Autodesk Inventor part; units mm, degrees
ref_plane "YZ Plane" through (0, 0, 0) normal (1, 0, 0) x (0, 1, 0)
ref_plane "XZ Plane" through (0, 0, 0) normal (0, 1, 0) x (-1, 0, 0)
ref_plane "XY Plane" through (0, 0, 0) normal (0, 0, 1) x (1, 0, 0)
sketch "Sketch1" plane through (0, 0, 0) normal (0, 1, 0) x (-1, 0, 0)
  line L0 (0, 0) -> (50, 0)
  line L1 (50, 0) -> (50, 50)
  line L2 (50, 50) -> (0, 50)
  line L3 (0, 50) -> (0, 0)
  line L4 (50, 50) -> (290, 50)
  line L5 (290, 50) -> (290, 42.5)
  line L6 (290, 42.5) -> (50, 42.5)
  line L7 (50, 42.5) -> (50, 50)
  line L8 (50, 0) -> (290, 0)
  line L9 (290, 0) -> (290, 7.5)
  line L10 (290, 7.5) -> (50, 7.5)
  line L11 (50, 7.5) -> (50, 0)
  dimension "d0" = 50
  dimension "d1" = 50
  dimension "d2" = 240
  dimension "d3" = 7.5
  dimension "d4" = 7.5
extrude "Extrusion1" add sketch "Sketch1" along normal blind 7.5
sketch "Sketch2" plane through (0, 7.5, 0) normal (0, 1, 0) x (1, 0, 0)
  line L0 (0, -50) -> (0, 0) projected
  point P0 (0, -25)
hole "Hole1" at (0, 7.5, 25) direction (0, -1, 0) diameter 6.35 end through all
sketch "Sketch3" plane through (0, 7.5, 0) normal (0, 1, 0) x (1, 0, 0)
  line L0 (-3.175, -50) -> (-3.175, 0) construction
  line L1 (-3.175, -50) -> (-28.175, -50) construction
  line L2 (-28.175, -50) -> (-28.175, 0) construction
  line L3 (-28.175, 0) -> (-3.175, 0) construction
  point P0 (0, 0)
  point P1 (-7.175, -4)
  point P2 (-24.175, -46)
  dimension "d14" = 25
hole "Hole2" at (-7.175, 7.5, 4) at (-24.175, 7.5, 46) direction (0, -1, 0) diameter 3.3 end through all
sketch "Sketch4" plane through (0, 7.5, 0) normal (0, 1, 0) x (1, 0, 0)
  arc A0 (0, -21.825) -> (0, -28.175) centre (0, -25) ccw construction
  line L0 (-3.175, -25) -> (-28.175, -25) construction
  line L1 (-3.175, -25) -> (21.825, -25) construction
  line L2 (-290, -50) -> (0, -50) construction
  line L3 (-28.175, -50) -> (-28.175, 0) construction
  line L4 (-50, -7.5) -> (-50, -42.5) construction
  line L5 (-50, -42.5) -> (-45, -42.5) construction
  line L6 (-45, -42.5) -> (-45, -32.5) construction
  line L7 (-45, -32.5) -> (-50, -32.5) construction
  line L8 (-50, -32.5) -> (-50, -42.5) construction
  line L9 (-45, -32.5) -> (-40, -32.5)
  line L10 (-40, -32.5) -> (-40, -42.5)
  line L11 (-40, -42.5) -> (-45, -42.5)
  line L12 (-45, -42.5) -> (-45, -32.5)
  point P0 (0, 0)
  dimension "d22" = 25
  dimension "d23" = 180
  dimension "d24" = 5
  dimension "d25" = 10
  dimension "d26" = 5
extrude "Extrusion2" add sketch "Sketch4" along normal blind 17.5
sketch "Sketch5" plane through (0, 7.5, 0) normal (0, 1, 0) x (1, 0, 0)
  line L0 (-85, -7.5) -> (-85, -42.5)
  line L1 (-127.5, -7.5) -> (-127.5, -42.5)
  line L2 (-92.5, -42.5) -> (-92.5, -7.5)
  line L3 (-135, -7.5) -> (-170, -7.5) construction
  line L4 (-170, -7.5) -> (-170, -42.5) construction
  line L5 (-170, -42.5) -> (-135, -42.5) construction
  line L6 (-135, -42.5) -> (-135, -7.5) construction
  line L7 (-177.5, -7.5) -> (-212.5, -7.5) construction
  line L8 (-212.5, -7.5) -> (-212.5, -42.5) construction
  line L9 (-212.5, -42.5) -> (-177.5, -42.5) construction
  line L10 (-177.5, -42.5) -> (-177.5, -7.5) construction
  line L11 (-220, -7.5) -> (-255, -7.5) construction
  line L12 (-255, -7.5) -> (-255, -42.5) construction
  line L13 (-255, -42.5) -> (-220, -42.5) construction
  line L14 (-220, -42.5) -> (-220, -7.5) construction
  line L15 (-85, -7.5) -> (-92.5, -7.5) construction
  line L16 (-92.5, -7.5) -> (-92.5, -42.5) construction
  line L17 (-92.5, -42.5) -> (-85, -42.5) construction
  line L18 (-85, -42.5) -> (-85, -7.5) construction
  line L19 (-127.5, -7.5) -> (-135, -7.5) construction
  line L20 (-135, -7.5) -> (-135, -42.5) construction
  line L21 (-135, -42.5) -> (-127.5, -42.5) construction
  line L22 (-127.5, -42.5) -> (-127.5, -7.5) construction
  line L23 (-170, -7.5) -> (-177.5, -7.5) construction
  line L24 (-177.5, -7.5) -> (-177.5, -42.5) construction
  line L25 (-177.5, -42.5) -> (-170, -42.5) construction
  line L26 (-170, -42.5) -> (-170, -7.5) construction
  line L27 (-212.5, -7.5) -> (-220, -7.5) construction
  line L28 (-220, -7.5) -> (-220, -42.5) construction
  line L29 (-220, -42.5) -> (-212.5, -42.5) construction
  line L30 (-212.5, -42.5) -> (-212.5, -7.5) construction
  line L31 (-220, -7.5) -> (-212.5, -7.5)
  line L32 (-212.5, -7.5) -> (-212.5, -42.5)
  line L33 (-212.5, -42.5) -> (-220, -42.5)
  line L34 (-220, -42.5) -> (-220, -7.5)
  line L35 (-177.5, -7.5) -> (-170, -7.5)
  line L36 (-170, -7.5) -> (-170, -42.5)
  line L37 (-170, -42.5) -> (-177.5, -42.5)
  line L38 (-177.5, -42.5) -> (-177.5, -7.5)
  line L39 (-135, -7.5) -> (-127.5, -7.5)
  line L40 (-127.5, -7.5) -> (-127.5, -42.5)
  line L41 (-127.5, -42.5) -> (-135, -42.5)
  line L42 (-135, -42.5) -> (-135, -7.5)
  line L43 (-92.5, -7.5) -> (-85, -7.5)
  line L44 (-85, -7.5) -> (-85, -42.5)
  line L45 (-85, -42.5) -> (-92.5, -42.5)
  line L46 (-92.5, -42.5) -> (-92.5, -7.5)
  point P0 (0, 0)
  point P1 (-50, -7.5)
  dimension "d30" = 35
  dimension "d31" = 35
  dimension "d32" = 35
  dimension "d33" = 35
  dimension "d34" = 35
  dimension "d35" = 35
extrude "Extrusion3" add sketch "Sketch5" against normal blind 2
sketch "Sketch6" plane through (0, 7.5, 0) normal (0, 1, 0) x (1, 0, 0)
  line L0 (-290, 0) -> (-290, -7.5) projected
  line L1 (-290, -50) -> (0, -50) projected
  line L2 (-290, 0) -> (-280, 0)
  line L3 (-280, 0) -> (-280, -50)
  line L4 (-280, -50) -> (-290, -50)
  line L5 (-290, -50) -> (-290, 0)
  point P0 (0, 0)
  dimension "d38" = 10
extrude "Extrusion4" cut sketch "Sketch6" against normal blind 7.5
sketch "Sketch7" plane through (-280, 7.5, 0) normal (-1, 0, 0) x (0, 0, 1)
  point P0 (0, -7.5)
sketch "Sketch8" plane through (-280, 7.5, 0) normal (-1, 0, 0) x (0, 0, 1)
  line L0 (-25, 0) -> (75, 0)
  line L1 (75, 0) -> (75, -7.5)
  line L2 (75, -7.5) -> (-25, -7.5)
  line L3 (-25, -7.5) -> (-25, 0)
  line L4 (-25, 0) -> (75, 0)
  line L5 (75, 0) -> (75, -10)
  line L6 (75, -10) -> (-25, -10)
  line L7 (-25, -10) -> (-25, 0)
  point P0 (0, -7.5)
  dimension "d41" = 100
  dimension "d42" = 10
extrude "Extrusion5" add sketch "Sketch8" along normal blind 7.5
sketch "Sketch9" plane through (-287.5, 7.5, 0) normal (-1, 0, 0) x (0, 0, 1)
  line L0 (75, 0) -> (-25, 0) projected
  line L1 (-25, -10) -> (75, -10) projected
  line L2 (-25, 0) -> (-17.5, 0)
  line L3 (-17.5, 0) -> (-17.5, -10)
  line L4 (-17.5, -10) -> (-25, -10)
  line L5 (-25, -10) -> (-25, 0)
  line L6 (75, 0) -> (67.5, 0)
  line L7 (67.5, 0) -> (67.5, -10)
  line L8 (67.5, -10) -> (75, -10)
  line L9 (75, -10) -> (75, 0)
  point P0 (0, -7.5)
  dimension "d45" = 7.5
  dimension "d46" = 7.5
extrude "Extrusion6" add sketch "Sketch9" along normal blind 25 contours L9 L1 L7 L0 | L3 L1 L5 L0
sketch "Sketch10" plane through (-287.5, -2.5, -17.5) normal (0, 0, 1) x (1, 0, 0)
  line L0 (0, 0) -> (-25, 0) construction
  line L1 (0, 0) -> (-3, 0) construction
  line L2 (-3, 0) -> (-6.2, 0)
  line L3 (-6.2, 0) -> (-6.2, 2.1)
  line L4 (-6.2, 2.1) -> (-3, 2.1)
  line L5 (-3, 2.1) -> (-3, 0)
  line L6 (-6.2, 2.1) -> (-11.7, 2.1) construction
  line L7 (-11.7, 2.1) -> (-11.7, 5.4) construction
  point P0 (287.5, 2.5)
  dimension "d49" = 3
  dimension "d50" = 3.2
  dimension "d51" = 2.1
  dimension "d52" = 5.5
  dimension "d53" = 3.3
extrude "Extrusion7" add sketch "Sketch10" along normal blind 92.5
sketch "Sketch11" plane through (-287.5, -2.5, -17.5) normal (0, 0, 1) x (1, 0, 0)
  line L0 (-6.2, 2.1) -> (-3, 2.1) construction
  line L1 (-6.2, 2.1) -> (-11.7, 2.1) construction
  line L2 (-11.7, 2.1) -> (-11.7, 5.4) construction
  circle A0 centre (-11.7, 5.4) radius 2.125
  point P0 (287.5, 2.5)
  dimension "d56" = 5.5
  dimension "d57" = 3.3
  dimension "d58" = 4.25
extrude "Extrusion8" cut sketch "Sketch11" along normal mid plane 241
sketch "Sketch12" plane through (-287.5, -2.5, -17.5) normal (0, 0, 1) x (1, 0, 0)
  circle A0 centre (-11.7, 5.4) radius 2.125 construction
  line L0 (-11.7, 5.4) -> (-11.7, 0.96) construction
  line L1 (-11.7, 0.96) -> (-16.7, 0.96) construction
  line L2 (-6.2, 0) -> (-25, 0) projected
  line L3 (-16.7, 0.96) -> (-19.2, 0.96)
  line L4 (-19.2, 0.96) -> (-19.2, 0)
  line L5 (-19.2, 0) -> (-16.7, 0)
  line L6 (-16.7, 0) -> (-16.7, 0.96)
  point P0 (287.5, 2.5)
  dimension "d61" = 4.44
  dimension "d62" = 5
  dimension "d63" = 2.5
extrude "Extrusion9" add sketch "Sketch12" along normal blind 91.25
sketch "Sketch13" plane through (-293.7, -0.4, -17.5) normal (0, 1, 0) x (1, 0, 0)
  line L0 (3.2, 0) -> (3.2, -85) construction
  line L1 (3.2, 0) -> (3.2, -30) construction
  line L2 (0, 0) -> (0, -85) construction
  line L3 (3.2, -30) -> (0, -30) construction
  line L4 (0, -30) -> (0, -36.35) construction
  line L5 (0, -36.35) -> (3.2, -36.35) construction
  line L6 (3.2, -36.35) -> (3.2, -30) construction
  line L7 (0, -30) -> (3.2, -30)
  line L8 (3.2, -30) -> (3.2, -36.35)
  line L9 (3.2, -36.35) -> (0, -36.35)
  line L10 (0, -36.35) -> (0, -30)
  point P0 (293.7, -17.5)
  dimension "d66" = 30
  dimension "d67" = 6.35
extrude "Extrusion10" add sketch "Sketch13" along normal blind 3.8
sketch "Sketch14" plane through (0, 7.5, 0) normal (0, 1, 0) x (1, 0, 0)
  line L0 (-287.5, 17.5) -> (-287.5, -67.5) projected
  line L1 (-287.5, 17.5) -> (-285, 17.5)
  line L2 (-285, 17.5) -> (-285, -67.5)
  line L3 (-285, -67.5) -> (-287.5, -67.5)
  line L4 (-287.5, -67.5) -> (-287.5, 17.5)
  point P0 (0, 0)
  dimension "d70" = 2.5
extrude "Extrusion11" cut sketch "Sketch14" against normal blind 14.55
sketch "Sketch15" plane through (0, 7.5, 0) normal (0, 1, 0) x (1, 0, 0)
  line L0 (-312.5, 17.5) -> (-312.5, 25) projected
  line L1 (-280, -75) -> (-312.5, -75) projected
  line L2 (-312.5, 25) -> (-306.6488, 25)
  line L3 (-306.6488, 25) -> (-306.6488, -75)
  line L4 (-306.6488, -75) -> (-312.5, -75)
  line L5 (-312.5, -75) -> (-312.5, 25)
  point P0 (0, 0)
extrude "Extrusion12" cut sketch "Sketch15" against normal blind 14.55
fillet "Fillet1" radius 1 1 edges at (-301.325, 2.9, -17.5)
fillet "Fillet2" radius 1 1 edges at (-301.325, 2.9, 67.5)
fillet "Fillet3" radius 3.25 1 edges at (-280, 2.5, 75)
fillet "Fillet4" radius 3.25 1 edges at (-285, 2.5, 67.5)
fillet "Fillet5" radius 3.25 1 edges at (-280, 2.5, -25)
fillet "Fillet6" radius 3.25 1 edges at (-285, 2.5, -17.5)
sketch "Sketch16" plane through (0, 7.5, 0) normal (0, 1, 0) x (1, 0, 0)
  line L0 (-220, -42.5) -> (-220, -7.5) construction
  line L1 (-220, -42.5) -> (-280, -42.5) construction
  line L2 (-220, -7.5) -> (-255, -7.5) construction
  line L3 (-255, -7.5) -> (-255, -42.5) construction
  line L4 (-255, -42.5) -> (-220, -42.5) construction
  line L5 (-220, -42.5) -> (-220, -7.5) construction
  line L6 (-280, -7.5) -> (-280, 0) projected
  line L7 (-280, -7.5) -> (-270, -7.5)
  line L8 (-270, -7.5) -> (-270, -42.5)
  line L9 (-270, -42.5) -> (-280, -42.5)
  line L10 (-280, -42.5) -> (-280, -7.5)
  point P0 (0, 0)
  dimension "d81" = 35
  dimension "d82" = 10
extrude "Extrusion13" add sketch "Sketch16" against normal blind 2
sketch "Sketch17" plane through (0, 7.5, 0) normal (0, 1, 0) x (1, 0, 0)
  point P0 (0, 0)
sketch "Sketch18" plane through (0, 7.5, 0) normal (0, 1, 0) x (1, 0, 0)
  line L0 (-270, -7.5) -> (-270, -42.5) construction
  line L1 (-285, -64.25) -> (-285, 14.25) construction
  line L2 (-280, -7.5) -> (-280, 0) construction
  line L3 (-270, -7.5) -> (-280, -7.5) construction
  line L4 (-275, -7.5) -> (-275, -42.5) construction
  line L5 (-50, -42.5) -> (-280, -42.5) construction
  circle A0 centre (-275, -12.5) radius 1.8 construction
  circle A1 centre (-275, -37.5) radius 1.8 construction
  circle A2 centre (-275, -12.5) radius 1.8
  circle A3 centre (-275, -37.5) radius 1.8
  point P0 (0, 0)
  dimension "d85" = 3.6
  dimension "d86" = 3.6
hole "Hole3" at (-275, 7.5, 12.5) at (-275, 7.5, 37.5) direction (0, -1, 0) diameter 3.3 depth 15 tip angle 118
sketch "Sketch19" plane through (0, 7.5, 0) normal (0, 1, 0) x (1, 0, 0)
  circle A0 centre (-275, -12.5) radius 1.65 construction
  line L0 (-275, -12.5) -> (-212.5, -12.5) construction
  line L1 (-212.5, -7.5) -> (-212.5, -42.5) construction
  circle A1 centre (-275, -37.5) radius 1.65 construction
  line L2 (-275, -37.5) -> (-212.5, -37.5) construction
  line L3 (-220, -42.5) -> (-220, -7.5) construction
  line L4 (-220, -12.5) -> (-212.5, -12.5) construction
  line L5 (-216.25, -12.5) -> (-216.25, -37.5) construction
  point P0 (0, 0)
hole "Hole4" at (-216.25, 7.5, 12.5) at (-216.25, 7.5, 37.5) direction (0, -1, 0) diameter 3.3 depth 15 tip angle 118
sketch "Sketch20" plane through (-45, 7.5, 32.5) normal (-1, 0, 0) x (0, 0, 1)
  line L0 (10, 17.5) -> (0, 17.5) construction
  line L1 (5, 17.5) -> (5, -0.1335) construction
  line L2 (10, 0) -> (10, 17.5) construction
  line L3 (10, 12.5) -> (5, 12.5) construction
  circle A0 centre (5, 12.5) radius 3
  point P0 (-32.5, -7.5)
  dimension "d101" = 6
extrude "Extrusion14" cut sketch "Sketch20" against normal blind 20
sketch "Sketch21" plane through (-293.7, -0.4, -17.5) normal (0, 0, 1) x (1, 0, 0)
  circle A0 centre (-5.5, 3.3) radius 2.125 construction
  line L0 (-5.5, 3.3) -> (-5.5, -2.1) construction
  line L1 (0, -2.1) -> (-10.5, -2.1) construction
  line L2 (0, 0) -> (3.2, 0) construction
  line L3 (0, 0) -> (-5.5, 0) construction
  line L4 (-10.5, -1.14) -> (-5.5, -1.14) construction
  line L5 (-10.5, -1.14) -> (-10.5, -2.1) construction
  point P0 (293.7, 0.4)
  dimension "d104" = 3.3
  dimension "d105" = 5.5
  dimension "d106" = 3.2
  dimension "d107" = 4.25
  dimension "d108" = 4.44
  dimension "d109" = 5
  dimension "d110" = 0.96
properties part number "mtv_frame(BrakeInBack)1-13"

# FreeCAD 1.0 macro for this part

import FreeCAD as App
import Part
import Sketcher

V = App.Vector
Q = App.Units.Quantity


def edges_at(feature, points):
    """Names of the edges that pass closest to the given points."""
    edges = feature.Shape.Edges
    near = lambda p: min(range(len(edges)), key=lambda i: edges[i].distToShape(Part.Vertex(*p))[0])
    return sorted({f"Edge{near(p) + 1}" for p in points})


def add_polygon(sketch, points):
    """Adds a closed chain of lines whose ends are joined by coincident constraints."""
    first, n = sketch.GeometryCount, len(points)
    for a, b in zip(points, points[1:] + points[:1]):
        sketch.addGeometry(Part.LineSegment(App.Vector(*a, 0), App.Vector(*b, 0)), False)
    for i in range(n):
        sketch.addConstraint(Sketcher.Constraint("Coincident", first + i, 2, first + (i + 1) % n, 1))

doc = App.newDocument("Part")
body = doc.addObject("PartDesign::Body", "Body")

# Sketch on XZ plane
sketch1 = body.newObject("Sketcher::SketchObject", "Sketch")
sketch1.AttachmentSupport = (doc.getObject("XZ_Plane"), [""])
sketch1.MapMode = "FlatFace"
add_polygon(sketch1, [(0, 50), (0, 0), (-290, 0), (-290, 7.5), (-50, 7.5), (-50, 42.5), (-290, 42.5), (-290, 50)])  # lines 0-7
sketch1.addConstraint([
    Sketcher.Constraint("Vertical", 0),
    Sketcher.Constraint("Horizontal", 1),
    Sketcher.Constraint("Vertical", 2),
    Sketcher.Constraint("Horizontal", 3),
    Sketcher.Constraint("Vertical", 4),
    Sketcher.Constraint("Horizontal", 5),
    Sketcher.Constraint("Vertical", 6),
    Sketcher.Constraint("Horizontal", 7),
    Sketcher.Constraint("Coincident", 0, 2, -1, 1),
    Sketcher.Constraint("Vertical", 2, 2, 5, 2),
    Sketcher.Constraint("Equal", 2, 6),
    Sketcher.Constraint("DistanceX", 3, 1, 3, 2, Q("240 mm")),
    Sketcher.Constraint("DistanceY", 0, 2, 0, 1, Q("50 mm")),
    Sketcher.Constraint("DistanceY", 2, 1, 2, 2, Q("7.5 mm")),
    Sketcher.Constraint("DistanceX", 3, 2, -1, 1, Q("50 mm")),
])
pad1 = body.newObject("PartDesign::Pad", "Pad")
pad1.Profile = sketch1
pad1.Length = 7.5
pad1.Reversed = True

# Sketch on XZ plane
sketch2 = body.newObject("Sketcher::SketchObject", "Sketch001")
sketch2.AttachmentSupport = (doc.getObject("XZ_Plane"), [""])
sketch2.MapMode = "FlatFace"
sketch2.AttachmentOffset = App.Placement(V(0, 0, -7.5), App.Rotation())
sketch2.addGeometry(Part.Circle(V(0, 25, 0), V(0, 0, 1), 3.175), False)
sketch2.addConstraint([
    Sketcher.Constraint("PointOnObject", 0, 3, -2),
    Sketcher.Constraint("Diameter", 0, Q("6.35 mm")),
    Sketcher.Constraint("DistanceY", -1, 1, 0, 3, Q("25 mm")),
])
doc.recompute()
hole = body.newObject("PartDesign::Hole", "Hole")
hole.Profile = sketch2
hole.ThreadType = "None"
hole.Diameter = 6.35
hole.DepthType = "ThroughAll"
hole.Reversed = True

# Sketch on XZ plane
sketch3 = body.newObject("Sketcher::SketchObject", "Sketch002")
sketch3.AttachmentSupport = (doc.getObject("XZ_Plane"), [""])
sketch3.MapMode = "FlatFace"
sketch3.AttachmentOffset = App.Placement(V(0, 0, -7.5), App.Rotation())
sketch3.addGeometry([
    Part.Circle(V(-7.175, 4, 0), V(0, 0, 1), 1.65),
    Part.Circle(V(-24.175, 46, 0), V(0, 0, 1), 1.65),
], False)
sketch3.addConstraint([
    Sketcher.Constraint("Equal", 0, 1),
    Sketcher.Constraint("Diameter", 0, Q("3.3 mm")),
    Sketcher.Constraint("DistanceY", -1, 1, 0, 3, Q("4 mm")),
    Sketcher.Constraint("DistanceY", -1, 1, 1, 3, Q("46 mm")),
    Sketcher.Constraint("DistanceX", 1, 3, 0, 3, Q("17 mm")),
    Sketcher.Constraint("DistanceX", 0, 3, -1, 1, Q("7.175 mm")),
])
doc.recompute()
hole2 = body.newObject("PartDesign::Hole", "Hole001")
hole2.Profile = sketch3
hole2.ThreadType = "None"
hole2.Diameter = 3.3
hole2.DepthType = "ThroughAll"
hole2.Reversed = True

# Sketch on XZ plane
sketch4 = body.newObject("Sketcher::SketchObject", "Sketch003")
sketch4.AttachmentSupport = (doc.getObject("XZ_Plane"), [""])
sketch4.MapMode = "FlatFace"
sketch4.AttachmentOffset = App.Placement(V(0, 0, -7.5), App.Rotation())
add_polygon(sketch4, [(-40, 32.5), (-45, 32.5), (-45, 42.5), (-40, 42.5)])  # lines 0-3
sketch4.addConstraint([
    Sketcher.Constraint("Horizontal", 0),
    Sketcher.Constraint("Vertical", 1),
    Sketcher.Constraint("Horizontal", 2),
    Sketcher.Constraint("Vertical", 3),
    Sketcher.Constraint("DistanceX", 0, 2, 0, 1, Q("5 mm")),
    Sketcher.Constraint("DistanceY", 1, 1, 1, 2, Q("10 mm")),
    Sketcher.Constraint("DistanceX", 0, 2, -1, 1, Q("45 mm")),
    Sketcher.Constraint("DistanceY", -1, 1, 0, 2, Q("32.5 mm")),
])
pad2 = body.newObject("PartDesign::Pad", "Pad001")
pad2.Profile = sketch4
pad2.Length = 17.5
pad2.Reversed = True

# Sketch on XZ plane
sketch5 = body.newObject("Sketcher::SketchObject", "Sketch004")
sketch5.AttachmentSupport = (doc.getObject("XZ_Plane"), [""])
sketch5.MapMode = "FlatFace"
sketch5.AttachmentOffset = App.Placement(V(0, 0, -7.5), App.Rotation())
add_polygon(sketch5, [(-85, 42.5), (-85, 7.5), (-92.5, 7.5), (-92.5, 42.5)])  # lines 0-3
add_polygon(sketch5, [(-127.5, 42.5), (-127.5, 7.5), (-135, 7.5), (-135, 42.5)])  # lines 4-7
add_polygon(sketch5, [(-212.5, 7.5), (-220, 7.5), (-220, 42.5), (-212.5, 42.5)])  # lines 8-11
add_polygon(sketch5, [(-170, 7.5), (-177.5, 7.5), (-177.5, 42.5), (-170, 42.5)])  # lines 12-15
sketch5.addConstraint([
    Sketcher.Constraint("Vertical", 0),
    Sketcher.Constraint("Horizontal", 1),
    Sketcher.Constraint("Vertical", 2),
    Sketcher.Constraint("Horizontal", 3),
    Sketcher.Constraint("Vertical", 4),
    Sketcher.Constraint("Horizontal", 5),
    Sketcher.Constraint("Vertical", 6),
    Sketcher.Constraint("Horizontal", 7),
    Sketcher.Constraint("Horizontal", 8),
    Sketcher.Constraint("Vertical", 9),
    Sketcher.Constraint("Horizontal", 10),
    Sketcher.Constraint("Vertical", 11),
    Sketcher.Constraint("Horizontal", 12),
    Sketcher.Constraint("Vertical", 13),
    Sketcher.Constraint("Horizontal", 14),
    Sketcher.Constraint("Vertical", 15),
    Sketcher.Constraint("Horizontal", 1, 2, 4, 2),
    Sketcher.Constraint("Horizontal", 3, 2, 6, 2),
    Sketcher.Constraint("Horizontal", 5, 2, 8, 2),
    Sketcher.Constraint("Horizontal", 7, 2, 9, 2),
    Sketcher.Constraint("Horizontal", 11, 2, 12, 2),
    Sketcher.Constraint("Horizontal", 10, 2, 13, 2),
    Sketcher.Constraint("Equal", 3, 5),
    Sketcher.Constraint("Equal", 7, 8),
    Sketcher.Constraint("Equal", 10, 12),
    Sketcher.Constraint("DistanceY", 0, 2, 0, 1, Q("35 mm")),
    Sketcher.Constraint("DistanceX", 4, 2, 1, 2, Q("35 mm")),
    Sketcher.Constraint("DistanceX", 11, 2, 12, 2, Q("35 mm")),
    Sketcher.Constraint("DistanceX", 14, 2, 6, 2, Q("35 mm")),
    Sketcher.Constraint("DistanceX", 1, 2, 1, 1, Q("7.5 mm")),
    Sketcher.Constraint("DistanceX", 0, 2, -1, 1, Q("85 mm")),
    Sketcher.Constraint("DistanceY", -1, 1, 0, 2, Q("7.5 mm")),
])
pad3 = body.newObject("PartDesign::Pad", "Pad002")
pad3.Profile = sketch5
pad3.Length = 2

# Sketch on XZ plane
sketch6 = body.newObject("Sketcher::SketchObject", "Sketch005")
sketch6.AttachmentSupport = (doc.getObject("XZ_Plane"), [""])
sketch6.MapMode = "FlatFace"
sketch6.AttachmentOffset = App.Placement(V(0, 0, -7.5), App.Rotation())
add_polygon(sketch6, [(-280, 0), (-290, 0), (-290, 50), (-280, 50)])  # lines 0-3
sketch6.addConstraint([
    Sketcher.Constraint("Horizontal", 0),
    Sketcher.Constraint("Vertical", 1),
    Sketcher.Constraint("Horizontal", 2),
    Sketcher.Constraint("Vertical", 3),
    Sketcher.Constraint("PointOnObject", 0, 2, -1),
    Sketcher.Constraint("DistanceX", 0, 2, 0, 1, Q("10 mm")),
    Sketcher.Constraint("DistanceY", 1, 1, 1, 2, Q("50 mm")),
    Sketcher.Constraint("DistanceX", 0, 2, -1, 1, Q("290 mm")),
])
pocket1 = body.newObject("PartDesign::Pocket", "Pocket")
pocket1.Profile = sketch6
pocket1.Length = 7.5
pocket1.Reversed = True

# Sketch on YZ plane
sketch7 = body.newObject("Sketcher::SketchObject", "Sketch006")
sketch7.AttachmentSupport = (doc.getObject("YZ_Plane"), [""])
sketch7.MapMode = "FlatFace"
sketch7.AttachmentOffset = App.Placement(V(0, 0, -280), App.Rotation())
add_polygon(sketch7, [(7.5, 75), (7.5, -25), (-2.5, -25), (-2.5, 75)])  # lines 0-3
sketch7.addConstraint([
    Sketcher.Constraint("Vertical", 0),
    Sketcher.Constraint("Horizontal", 1),
    Sketcher.Constraint("Vertical", 2),
    Sketcher.Constraint("Horizontal", 3),
    Sketcher.Constraint("DistanceX", 1, 2, 1, 1, Q("10 mm")),
    Sketcher.Constraint("DistanceY", 0, 2, 0, 1, Q("100 mm")),
    Sketcher.Constraint("DistanceY", 0, 2, -1, 1, Q("25 mm")),
    Sketcher.Constraint("DistanceX", -1, 1, 0, 2, Q("7.5 mm")),
])
pad4 = body.newObject("PartDesign::Pad", "Pad003")
pad4.Profile = sketch7
pad4.Length = 7.5
pad4.Reversed = True

# Sketch on YZ plane
sketch8 = body.newObject("Sketcher::SketchObject", "Sketch007")
sketch8.AttachmentSupport = (doc.getObject("YZ_Plane"), [""])
sketch8.MapMode = "FlatFace"
sketch8.AttachmentOffset = App.Placement(V(0, 0, -287.5), App.Rotation())
add_polygon(sketch8, [(-2.5, 75), (7.5, 75), (7.5, 67.5), (-2.5, 67.5)])  # lines 0-3
add_polygon(sketch8, [(-2.5, -17.5), (7.5, -17.5), (7.5, -25), (-2.5, -25)])  # lines 4-7
sketch8.addConstraint([
    Sketcher.Constraint("Horizontal", 0),
    Sketcher.Constraint("Vertical", 1),
    Sketcher.Constraint("Horizontal", 2),
    Sketcher.Constraint("Vertical", 3),
    Sketcher.Constraint("Horizontal", 4),
    Sketcher.Constraint("Vertical", 5),
    Sketcher.Constraint("Horizontal", 6),
    Sketcher.Constraint("Vertical", 7),
    Sketcher.Constraint("Vertical", 1, 2, 4, 2),
    Sketcher.Constraint("Vertical", 3, 2, 6, 2),
    Sketcher.Constraint("Equal", 3, 5),
    Sketcher.Constraint("DistanceY", 1, 2, 1, 1, Q("7.5 mm")),
    Sketcher.Constraint("DistanceX", -1, 1, 0, 2, Q("7.5 mm")),
    Sketcher.Constraint("DistanceX", 0, 1, 0, 2, Q("10 mm")),
    Sketcher.Constraint("DistanceY", -1, 1, 0, 2, Q("75 mm")),
    Sketcher.Constraint("DistanceY", 5, 2, -1, 1, Q("25 mm")),
])
pad5 = body.newObject("PartDesign::Pad", "Pad004")
pad5.Profile = sketch8
pad5.Length = 25
pad5.Reversed = True

# Sketch on XY plane
sketch9 = body.newObject("Sketcher::SketchObject", "Sketch008")
sketch9.AttachmentSupport = (doc.getObject("XY_Plane"), [""])
sketch9.MapMode = "FlatFace"
sketch9.AttachmentOffset = App.Placement(V(0, 0, -17.5), App.Rotation())
add_polygon(sketch9, [(-293.7, -2.5), (-290.5, -2.5), (-290.5, -0.4), (-293.7, -0.4)])  # lines 0-3
sketch9.addConstraint([
    Sketcher.Constraint("Horizontal", 0),
    Sketcher.Constraint("Vertical", 1),
    Sketcher.Constraint("Horizontal", 2),
    Sketcher.Constraint("Vertical", 3),
    Sketcher.Constraint("DistanceX", 0, 1, 0, 2, Q("3.2 mm")),
    Sketcher.Constraint("DistanceY", 1, 1, 1, 2, Q("2.1 mm")),
    Sketcher.Constraint("DistanceX", 0, 2, -1, 1, Q("290.5 mm")),
    Sketcher.Constraint("DistanceY", 0, 2, -1, 1, Q("2.5 mm")),
])
pad6 = body.newObject("PartDesign::Pad", "Pad005")
pad6.Profile = sketch9
pad6.Length = 92.5

# Sketch on XY plane
sketch10 = body.newObject("Sketcher::SketchObject", "Sketch009")
sketch10.AttachmentSupport = (doc.getObject("XY_Plane"), [""])
sketch10.MapMode = "FlatFace"
sketch10.AttachmentOffset = App.Placement(V(0, 0, -17.5), App.Rotation())
sketch10.addGeometry(Part.Circle(V(-299.2, 2.9, 0), V(0, 0, 1), 2.125), False)
sketch10.addConstraint([
    Sketcher.Constraint("Diameter", 0, Q("4.25 mm")),
    Sketcher.Constraint("DistanceX", 0, 3, -1, 1, Q("299.2 mm")),
    Sketcher.Constraint("DistanceY", -1, 1, 0, 3, Q("2.9 mm")),
])
pocket2 = body.newObject("PartDesign::Pocket", "Pocket001")
pocket2.Profile = sketch10
pocket2.Length = 241
pocket2.Midplane = True

# Sketch on XY plane
sketch11 = body.newObject("Sketcher::SketchObject", "Sketch010")
sketch11.AttachmentSupport = (doc.getObject("XY_Plane"), [""])
sketch11.MapMode = "FlatFace"
sketch11.AttachmentOffset = App.Placement(V(0, 0, -17.5), App.Rotation())
add_polygon(sketch11, [(-306.7, -2.5), (-304.2, -2.5), (-304.2, -1.54), (-306.7, -1.54)])  # lines 0-3
sketch11.addConstraint([
    Sketcher.Constraint("Horizontal", 0),
    Sketcher.Constraint("Vertical", 1),
    Sketcher.Constraint("Horizontal", 2),
    Sketcher.Constraint("Vertical", 3),
    Sketcher.Constraint("DistanceX", 0, 1, 0, 2, Q("2.5 mm")),
    Sketcher.Constraint("DistanceY", 0, 2, -1, 1, Q("2.5 mm")),
    Sketcher.Constraint("DistanceY", 1, 1, 1, 2, Q("0.96 mm")),
    Sketcher.Constraint("DistanceX", 0, 2, -1, 1, Q("304.2 mm")),
])
pad7 = body.newObject("PartDesign::Pad", "Pad006")
pad7.Profile = sketch11
pad7.Length = 91.25

# Sketch on XZ plane
sketch12 = body.newObject("Sketcher::SketchObject", "Sketch011")
sketch12.AttachmentSupport = (doc.getObject("XZ_Plane"), [""])
sketch12.MapMode = "FlatFace"
sketch12.AttachmentOffset = App.Placement(V(0, 0, 0.4), App.Rotation())
add_polygon(sketch12, [(-290.5, 12.5), (-293.7, 12.5), (-293.7, 18.85), (-290.5, 18.85)])  # lines 0-3
sketch12.addConstraint([
    Sketcher.Constraint("Horizontal", 0),
    Sketcher.Constraint("Vertical", 1),
    Sketcher.Constraint("Horizontal", 2),
    Sketcher.Constraint("Vertical", 3),
    Sketcher.Constraint("DistanceY", 1, 1, 1, 2, Q("6.35 mm")),
    Sketcher.Constraint("DistanceX", 0, 2, 0, 1, Q("3.2 mm")),
    Sketcher.Constraint("DistanceX", 0, 2, -1, 1, Q("293.7 mm")),
    Sketcher.Constraint("DistanceY", -1, 1, 0, 2, Q("12.5 mm")),
])
pad8 = body.newObject("PartDesign::Pad", "Pad007")
pad8.Profile = sketch12
pad8.Length = 3.8
pad8.Reversed = True

# Sketch on XZ plane
sketch13 = body.newObject("Sketcher::SketchObject", "Sketch012")
sketch13.AttachmentSupport = (doc.getObject("XZ_Plane"), [""])
sketch13.MapMode = "FlatFace"
sketch13.AttachmentOffset = App.Placement(V(0, 0, -7.5), App.Rotation())
add_polygon(sketch13, [(-285, -17.5), (-287.5, -17.5), (-287.5, 67.5), (-285, 67.5)])  # lines 0-3
sketch13.addConstraint([
    Sketcher.Constraint("Horizontal", 0),
    Sketcher.Constraint("Vertical", 1),
    Sketcher.Constraint("Horizontal", 2),
    Sketcher.Constraint("Vertical", 3),
    Sketcher.Constraint("DistanceX", 0, 2, 0, 1, Q("2.5 mm")),
    Sketcher.Constraint("DistanceY", 1, 1, 1, 2, Q("85 mm")),
    Sketcher.Constraint("DistanceX", 2, 2, -1, 1, Q("285 mm")),
    Sketcher.Constraint("DistanceY", 0, 2, -1, 1, Q("17.5 mm")),
])
pocket3 = body.newObject("PartDesign::Pocket", "Pocket002")
pocket3.Profile = sketch13
pocket3.Length = 14.55
pocket3.Reversed = True

# Sketch on XZ plane
sketch14 = body.newObject("Sketcher::SketchObject", "Sketch013")
sketch14.AttachmentSupport = (doc.getObject("XZ_Plane"), [""])
sketch14.MapMode = "FlatFace"
sketch14.AttachmentOffset = App.Placement(V(0, 0, -7.5), App.Rotation())
add_polygon(sketch14, [(-312.5, -25), (-312.5, 75), (-306.6488, 75), (-306.6488, -25)])  # lines 0-3
sketch14.addConstraint([
    Sketcher.Constraint("Vertical", 0),
    Sketcher.Constraint("Horizontal", 1),
    Sketcher.Constraint("Vertical", 2),
    Sketcher.Constraint("Horizontal", 3),
    Sketcher.Constraint("DistanceY", 0, 1, 0, 2, Q("100 mm")),
    Sketcher.Constraint("DistanceY", -1, 1, 0, 2, Q("75 mm")),
    Sketcher.Constraint("DistanceX", 0, 2, -1, 1, Q("312.5 mm")),
    Sketcher.Constraint("DistanceX", 1, 1, 1, 2, Q("5.8512 mm")),
])
pocket4 = body.newObject("PartDesign::Pocket", "Pocket003")
pocket4.Profile = sketch14
pocket4.Length = 14.55
pocket4.Reversed = True
doc.recompute()

fillet = body.newObject("PartDesign::Fillet", "Fillet")
fillet.Base = (pocket4, edges_at(pocket4, [(-301.325, 2.9, -17.5)]))
fillet.Radius = 1
doc.recompute()

fillet2 = body.newObject("PartDesign::Fillet", "Fillet001")
fillet2.Base = (fillet, edges_at(fillet, [(-301.325, 2.9, 67.5)]))
fillet2.Radius = 1
doc.recompute()

fillet3 = body.newObject("PartDesign::Fillet", "Fillet002")
fillet3.Base = (fillet2, edges_at(fillet2, [(-280, 2.5, 75)]))
fillet3.Radius = 3.25
doc.recompute()

fillet4 = body.newObject("PartDesign::Fillet", "Fillet003")
fillet4.Base = (fillet3, edges_at(fillet3, [(-285, 2.5, 67.5)]))
fillet4.Radius = 3.25
doc.recompute()

fillet5 = body.newObject("PartDesign::Fillet", "Fillet004")
fillet5.Base = (fillet4, edges_at(fillet4, [(-280, 2.5, -25)]))
fillet5.Radius = 3.25
doc.recompute()

fillet6 = body.newObject("PartDesign::Fillet", "Fillet005")
fillet6.Base = (fillet5, edges_at(fillet5, [(-285, 2.5, -17.5)]))
fillet6.Radius = 3.25

# Sketch on XZ plane
sketch15 = body.newObject("Sketcher::SketchObject", "Sketch014")
sketch15.AttachmentSupport = (doc.getObject("XZ_Plane"), [""])
sketch15.MapMode = "FlatFace"
sketch15.AttachmentOffset = App.Placement(V(0, 0, -7.5), App.Rotation())
add_polygon(sketch15, [(-270, 7.5), (-280, 7.5), (-280, 42.5), (-270, 42.5)])  # lines 0-3
sketch15.addConstraint([
    Sketcher.Constraint("Horizontal", 0),
    Sketcher.Constraint("Vertical", 1),
    Sketcher.Constraint("Horizontal", 2),
    Sketcher.Constraint("Vertical", 3),
    Sketcher.Constraint("DistanceX", 0, 2, 0, 1, Q("10 mm")),
    Sketcher.Constraint("DistanceY", 1, 1, 1, 2, Q("35 mm")),
    Sketcher.Constraint("DistanceX", 0, 2, -1, 1, Q("280 mm")),
    Sketcher.Constraint("DistanceY", -1, 1, 0, 2, Q("7.5 mm")),
])
pad9 = body.newObject("PartDesign::Pad", "Pad008")
pad9.Profile = sketch15
pad9.Length = 2

# Sketch on XZ plane
sketch16 = body.newObject("Sketcher::SketchObject", "Sketch015")
sketch16.AttachmentSupport = (doc.getObject("XZ_Plane"), [""])
sketch16.MapMode = "FlatFace"
sketch16.AttachmentOffset = App.Placement(V(0, 0, -7.5), App.Rotation())
sketch16.addGeometry([
    Part.Circle(V(-275, 12.5, 0), V(0, 0, 1), 1.65),
    Part.Circle(V(-275, 37.5, 0), V(0, 0, 1), 1.65),
], False)
sketch16.addConstraint([
    Sketcher.Constraint("Equal", 0, 1),
    Sketcher.Constraint("Vertical", 0, 3, 1, 3),
    Sketcher.Constraint("Diameter", 0, Q("3.3 mm")),
    Sketcher.Constraint("DistanceX", 0, 3, -1, 1, Q("275 mm")),
    Sketcher.Constraint("DistanceY", 0, 3, 1, 3, Q("25 mm")),
    Sketcher.Constraint("DistanceY", -1, 1, 0, 3, Q("12.5 mm")),
])
doc.recompute()
hole3 = body.newObject("PartDesign::Hole", "Hole002")
hole3.Profile = sketch16
hole3.ThreadType = "None"
hole3.Diameter = 3.3
hole3.DepthType = "Dimension"
hole3.Depth = 15
hole3.DrillPoint = "Angled"
hole3.DrillPointAngle = 118
hole3.Reversed = True

# Sketch on XZ plane
sketch17 = body.newObject("Sketcher::SketchObject", "Sketch016")
sketch17.AttachmentSupport = (doc.getObject("XZ_Plane"), [""])
sketch17.MapMode = "FlatFace"
sketch17.AttachmentOffset = App.Placement(V(0, 0, -7.5), App.Rotation())
sketch17.addGeometry([
    Part.Circle(V(-216.25, 12.5, 0), V(0, 0, 1), 1.65),
    Part.Circle(V(-216.25, 37.5, 0), V(0, 0, 1), 1.65),
], False)
sketch17.addConstraint([
    Sketcher.Constraint("Equal", 0, 1),
    Sketcher.Constraint("Vertical", 0, 3, 1, 3),
    Sketcher.Constraint("Diameter", 0, Q("3.3 mm")),
    Sketcher.Constraint("DistanceY", 0, 3, 1, 3, Q("25 mm")),
    Sketcher.Constraint("DistanceY", -1, 1, 0, 3, Q("12.5 mm")),
    Sketcher.Constraint("DistanceX", 0, 3, -1, 1, Q("216.25 mm")),
])
doc.recompute()
hole4 = body.newObject("PartDesign::Hole", "Hole003")
hole4.Profile = sketch17
hole4.ThreadType = "None"
hole4.Diameter = 3.3
hole4.DepthType = "Dimension"
hole4.Depth = 15
hole4.DrillPoint = "Angled"
hole4.DrillPointAngle = 118
hole4.Reversed = True

# Sketch on YZ plane
sketch18 = body.newObject("Sketcher::SketchObject", "Sketch017")
sketch18.AttachmentSupport = (doc.getObject("YZ_Plane"), [""])
sketch18.MapMode = "FlatFace"
sketch18.AttachmentOffset = App.Placement(V(0, 0, -45), App.Rotation())
sketch18.addGeometry(Part.Circle(V(20, 37.5, 0), V(0, 0, 1), 3), False)
sketch18.addConstraint([
    Sketcher.Constraint("Diameter", 0, Q("6 mm")),
    Sketcher.Constraint("DistanceX", -1, 1, 0, 3, Q("20 mm")),
    Sketcher.Constraint("DistanceY", -1, 1, 0, 3, Q("37.5 mm")),
])
pocket5 = body.newObject("PartDesign::Pocket", "Pocket004")
pocket5.Profile = sketch18
pocket5.Length = 20
pocket5.Reversed = True

doc.recompute()
